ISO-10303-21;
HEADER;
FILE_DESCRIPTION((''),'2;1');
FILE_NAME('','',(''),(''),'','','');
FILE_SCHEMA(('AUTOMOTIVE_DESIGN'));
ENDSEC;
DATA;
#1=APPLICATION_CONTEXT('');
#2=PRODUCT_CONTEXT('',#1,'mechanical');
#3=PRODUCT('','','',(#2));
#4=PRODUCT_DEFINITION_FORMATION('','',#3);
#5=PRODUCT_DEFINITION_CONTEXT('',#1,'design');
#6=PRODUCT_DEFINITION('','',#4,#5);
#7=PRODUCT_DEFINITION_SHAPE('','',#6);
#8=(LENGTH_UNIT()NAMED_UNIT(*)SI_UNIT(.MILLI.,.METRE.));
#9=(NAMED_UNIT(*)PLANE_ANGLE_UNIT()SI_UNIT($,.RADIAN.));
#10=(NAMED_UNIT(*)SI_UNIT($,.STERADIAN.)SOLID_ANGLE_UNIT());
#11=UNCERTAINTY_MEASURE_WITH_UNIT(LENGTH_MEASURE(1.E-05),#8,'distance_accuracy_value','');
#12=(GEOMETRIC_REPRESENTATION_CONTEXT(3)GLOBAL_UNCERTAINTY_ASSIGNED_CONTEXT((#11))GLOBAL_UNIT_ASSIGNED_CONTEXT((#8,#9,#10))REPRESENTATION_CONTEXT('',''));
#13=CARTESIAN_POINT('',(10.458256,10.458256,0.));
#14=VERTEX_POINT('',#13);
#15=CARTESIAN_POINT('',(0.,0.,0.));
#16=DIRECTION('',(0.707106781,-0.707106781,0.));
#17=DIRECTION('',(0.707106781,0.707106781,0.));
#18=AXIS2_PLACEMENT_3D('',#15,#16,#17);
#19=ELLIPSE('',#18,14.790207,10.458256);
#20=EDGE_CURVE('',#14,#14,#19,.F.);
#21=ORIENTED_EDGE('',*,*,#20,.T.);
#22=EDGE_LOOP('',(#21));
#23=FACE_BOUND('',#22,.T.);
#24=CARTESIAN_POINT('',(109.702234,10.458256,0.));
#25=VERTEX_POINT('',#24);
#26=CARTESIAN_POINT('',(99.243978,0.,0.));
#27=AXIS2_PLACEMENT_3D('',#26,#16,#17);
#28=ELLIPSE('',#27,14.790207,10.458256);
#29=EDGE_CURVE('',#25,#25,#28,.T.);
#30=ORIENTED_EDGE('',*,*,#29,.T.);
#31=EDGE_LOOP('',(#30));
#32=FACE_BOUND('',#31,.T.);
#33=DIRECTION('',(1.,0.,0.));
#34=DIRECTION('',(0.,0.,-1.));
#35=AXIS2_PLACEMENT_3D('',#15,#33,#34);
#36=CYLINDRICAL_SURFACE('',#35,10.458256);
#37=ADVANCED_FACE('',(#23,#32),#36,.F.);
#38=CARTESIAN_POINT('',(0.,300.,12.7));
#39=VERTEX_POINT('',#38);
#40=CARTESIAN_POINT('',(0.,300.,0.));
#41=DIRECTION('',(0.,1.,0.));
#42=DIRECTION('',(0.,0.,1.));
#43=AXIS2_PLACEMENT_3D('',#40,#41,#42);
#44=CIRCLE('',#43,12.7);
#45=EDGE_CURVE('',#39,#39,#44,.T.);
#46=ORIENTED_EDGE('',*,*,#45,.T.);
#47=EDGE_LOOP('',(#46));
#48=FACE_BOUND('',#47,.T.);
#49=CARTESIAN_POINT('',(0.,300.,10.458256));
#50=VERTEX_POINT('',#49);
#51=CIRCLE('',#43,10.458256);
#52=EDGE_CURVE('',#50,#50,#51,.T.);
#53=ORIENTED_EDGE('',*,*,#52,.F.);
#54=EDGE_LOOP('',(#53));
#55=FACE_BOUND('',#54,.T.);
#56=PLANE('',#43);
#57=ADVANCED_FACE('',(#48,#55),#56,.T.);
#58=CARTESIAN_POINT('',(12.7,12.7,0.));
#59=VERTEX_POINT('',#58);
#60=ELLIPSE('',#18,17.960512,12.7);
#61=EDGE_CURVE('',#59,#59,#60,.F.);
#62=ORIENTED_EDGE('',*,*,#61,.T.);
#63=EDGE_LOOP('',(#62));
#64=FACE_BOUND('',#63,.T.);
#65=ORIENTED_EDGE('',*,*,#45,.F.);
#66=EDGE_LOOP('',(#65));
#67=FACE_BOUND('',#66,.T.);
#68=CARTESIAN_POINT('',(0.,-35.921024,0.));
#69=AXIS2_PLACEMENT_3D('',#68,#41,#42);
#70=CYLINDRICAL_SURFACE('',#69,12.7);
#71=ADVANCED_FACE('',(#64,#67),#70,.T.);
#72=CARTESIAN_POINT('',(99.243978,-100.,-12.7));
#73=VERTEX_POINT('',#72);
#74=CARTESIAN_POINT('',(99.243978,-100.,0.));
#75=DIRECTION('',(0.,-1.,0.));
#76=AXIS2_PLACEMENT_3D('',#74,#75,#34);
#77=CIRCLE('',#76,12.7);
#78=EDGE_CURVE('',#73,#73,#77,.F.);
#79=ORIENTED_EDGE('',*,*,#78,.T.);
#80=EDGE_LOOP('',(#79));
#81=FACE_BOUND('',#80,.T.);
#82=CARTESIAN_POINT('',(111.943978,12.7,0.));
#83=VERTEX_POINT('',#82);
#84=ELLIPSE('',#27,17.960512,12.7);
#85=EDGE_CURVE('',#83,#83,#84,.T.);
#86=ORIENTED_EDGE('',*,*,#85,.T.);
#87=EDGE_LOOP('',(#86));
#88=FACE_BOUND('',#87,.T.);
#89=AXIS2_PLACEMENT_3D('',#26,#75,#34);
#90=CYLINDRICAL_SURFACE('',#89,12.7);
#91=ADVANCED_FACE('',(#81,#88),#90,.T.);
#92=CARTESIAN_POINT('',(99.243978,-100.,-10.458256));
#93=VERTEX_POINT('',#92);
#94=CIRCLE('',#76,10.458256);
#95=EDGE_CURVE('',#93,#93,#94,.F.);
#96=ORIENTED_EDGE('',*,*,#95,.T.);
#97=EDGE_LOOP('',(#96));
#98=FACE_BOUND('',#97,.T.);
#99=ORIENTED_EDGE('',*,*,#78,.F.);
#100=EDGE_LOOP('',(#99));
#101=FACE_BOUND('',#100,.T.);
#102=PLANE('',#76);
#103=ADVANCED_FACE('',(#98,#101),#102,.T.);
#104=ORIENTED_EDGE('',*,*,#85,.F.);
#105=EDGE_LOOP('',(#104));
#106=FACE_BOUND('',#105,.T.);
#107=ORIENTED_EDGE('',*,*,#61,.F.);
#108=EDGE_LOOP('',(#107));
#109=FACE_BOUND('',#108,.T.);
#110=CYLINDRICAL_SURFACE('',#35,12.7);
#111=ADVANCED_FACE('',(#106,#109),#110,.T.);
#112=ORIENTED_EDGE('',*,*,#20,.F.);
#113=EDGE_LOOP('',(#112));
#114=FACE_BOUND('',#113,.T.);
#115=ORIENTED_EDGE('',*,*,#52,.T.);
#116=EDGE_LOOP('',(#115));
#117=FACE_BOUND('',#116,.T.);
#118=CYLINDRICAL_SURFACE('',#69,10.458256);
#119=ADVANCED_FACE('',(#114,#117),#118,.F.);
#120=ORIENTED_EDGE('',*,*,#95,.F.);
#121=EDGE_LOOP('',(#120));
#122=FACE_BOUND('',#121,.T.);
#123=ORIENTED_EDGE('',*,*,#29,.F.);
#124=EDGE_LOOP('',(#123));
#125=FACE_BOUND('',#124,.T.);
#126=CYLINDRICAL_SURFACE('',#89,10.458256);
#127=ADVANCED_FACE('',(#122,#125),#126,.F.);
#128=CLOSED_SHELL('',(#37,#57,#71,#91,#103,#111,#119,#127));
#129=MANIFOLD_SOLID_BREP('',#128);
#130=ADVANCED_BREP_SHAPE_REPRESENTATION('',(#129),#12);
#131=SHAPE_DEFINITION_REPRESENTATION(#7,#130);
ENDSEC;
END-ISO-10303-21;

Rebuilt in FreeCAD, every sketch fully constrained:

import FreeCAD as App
import Part
import Sketcher

V = App.Vector
Q = App.Units.Quantity

doc = App.newDocument("Part")
body = doc.addObject("PartDesign::Body", "Body")

sketch1 = body.newObject("Sketcher::SketchObject", "Sketch")
sketch1.AttachmentSupport = (doc.getObject("XZ_Plane"), [""])
sketch1.MapMode = "FlatFace"
sketch1.AttachmentOffset = App.Placement(V(0, 0, -300), App.Rotation())
sketch1.addGeometry(Part.Circle(V(0, 0, 0), V(0, 0, 1), 12.7), False)
sketch1.addGeometry(Part.Circle(V(0, 0, 0), V(0, 0, 1), 10.458256), False)
sketch1.addConstraint(Sketcher.Constraint("Coincident", 0, 3, -1, 1))
sketch1.addConstraint(Sketcher.Constraint("Coincident", 1, 3, -1, 1))
sketch1.addConstraint(Sketcher.Constraint("Diameter", 0, Q("25.4 mm")))
sketch1.addConstraint(Sketcher.Constraint("Diameter", 1, Q("20.916512 mm")))

sketch2 = body.newObject("Sketcher::SketchObject", "Sketch001")
sketch2.AttachmentSupport = (doc.getObject("XY_Plane"), [""])
sketch2.MapMode = "FlatFace"
sketch2.addGeometry(Part.LineSegment(V(0, 300, 0), V(0, 0, 0)), False)
sketch2.addGeometry(Part.LineSegment(V(0, 0, 0), V(99.243978, 0, 0)), False)
sketch2.addGeometry(Part.LineSegment(V(99.243978, 0, 0), V(99.243978, -100, 0)), False)
sketch2.addConstraint(Sketcher.Constraint("Coincident", 0, 2, 1, 1))
sketch2.addConstraint(Sketcher.Constraint("Coincident", 1, 2, 2, 1))
sketch2.addConstraint(Sketcher.Constraint("Vertical", 0))
sketch2.addConstraint(Sketcher.Constraint("Horizontal", 1))
sketch2.addConstraint(Sketcher.Constraint("Vertical", 2))
sketch2.addConstraint(Sketcher.Constraint("Coincident", 0, 2, -1, 1))
sketch2.addConstraint(Sketcher.Constraint("DistanceY", 0, 2, 0, 1, Q("300 mm")))
sketch2.addConstraint(Sketcher.Constraint("DistanceY", 2, 2, 2, 1, Q("100 mm")))
sketch2.addConstraint(Sketcher.Constraint("DistanceX", 1, 1, 1, 2, Q("99.243978 mm")))
doc.recompute()

additivepipe = body.newObject("PartDesign::AdditivePipe", "AdditivePipe")
additivepipe.Profile = sketch1
additivepipe.Spine = (sketch2, ["Edge1", "Edge2", "Edge3"])
additivepipe.Transition = "Right corner"

doc.recompute()
